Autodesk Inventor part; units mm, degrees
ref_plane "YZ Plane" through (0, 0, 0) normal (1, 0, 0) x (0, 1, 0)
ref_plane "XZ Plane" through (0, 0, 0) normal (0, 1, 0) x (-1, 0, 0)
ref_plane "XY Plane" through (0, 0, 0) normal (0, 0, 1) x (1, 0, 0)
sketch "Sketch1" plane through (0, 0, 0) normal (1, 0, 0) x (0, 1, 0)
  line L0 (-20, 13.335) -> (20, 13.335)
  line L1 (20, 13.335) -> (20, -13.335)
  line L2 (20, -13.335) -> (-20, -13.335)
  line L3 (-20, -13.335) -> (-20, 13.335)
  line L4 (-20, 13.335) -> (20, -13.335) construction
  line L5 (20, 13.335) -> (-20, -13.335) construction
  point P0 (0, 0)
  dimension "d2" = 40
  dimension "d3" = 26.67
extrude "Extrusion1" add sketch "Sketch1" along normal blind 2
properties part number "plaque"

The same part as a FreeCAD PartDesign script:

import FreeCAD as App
import Part
import Sketcher
from FreeCAD import Vector


def add_polygon(sketch, points):
    """Adds a closed chain of lines whose ends are joined by coincident constraints."""
    first, n = sketch.GeometryCount, len(points)
    for a, b in zip(points, points[1:] + points[:1]):
        sketch.addGeometry(Part.LineSegment(App.Vector(*a, 0), App.Vector(*b, 0)), False)
    for i in range(n):
        sketch.addConstraint(Sketcher.Constraint("Coincident", first + i, 2, first + (i + 1) % n, 1))

doc = App.newDocument("Part")
params = doc.addObject("Spreadsheet::Sheet", "Params")
for row, (alias, value) in enumerate([
    ("sketch1_width", "40 mm"),
    ("sketch1_height", "26.67 mm"),
    ("pad1_length", "2 mm"),
], start=1):
    params.set(f"A{row}", alias)
    params.set(f"B{row}", "=" + value)
    params.setAlias(f"B{row}", alias)

body = doc.addObject("PartDesign::Body", "Body")

# Sketch on YZ plane
sketch1 = body.newObject("Sketcher::SketchObject", "Sketch")
sketch1.AttachmentSupport = (doc.getObject("YZ_Plane"), [""])
sketch1.MapMode = "FlatFace"
add_polygon(sketch1, [(20, 13), (-20, 13), (-20, -13), (20, -13)])  # lines 0-3
sketch1.addConstraint(Sketcher.Constraint("Horizontal", 0))
sketch1.addConstraint(Sketcher.Constraint("Vertical", 1))
sketch1.addConstraint(Sketcher.Constraint("Horizontal", 2))
sketch1.addConstraint(Sketcher.Constraint("Vertical", 3))
sketch1.addConstraint(Sketcher.Constraint("Symmetric", 0, 2, 2, 2, -1, 1))
sketch1.addConstraint(Sketcher.Constraint("DistanceX", 0, 2, 0, 1, 40.0))
sketch1.addConstraint(Sketcher.Constraint("DistanceY", 1, 2, 1, 1, 26.67))
sketch1.setExpression("Constraints[9]", "Params.sketch1_width")
sketch1.setExpression("Constraints[10]", "Params.sketch1_height")
pad1 = body.newObject("PartDesign::Pad", "Pad")
pad1.Profile = sketch1
pad1.setExpression("Length", "Params.pad1_length")

doc.recompute()
